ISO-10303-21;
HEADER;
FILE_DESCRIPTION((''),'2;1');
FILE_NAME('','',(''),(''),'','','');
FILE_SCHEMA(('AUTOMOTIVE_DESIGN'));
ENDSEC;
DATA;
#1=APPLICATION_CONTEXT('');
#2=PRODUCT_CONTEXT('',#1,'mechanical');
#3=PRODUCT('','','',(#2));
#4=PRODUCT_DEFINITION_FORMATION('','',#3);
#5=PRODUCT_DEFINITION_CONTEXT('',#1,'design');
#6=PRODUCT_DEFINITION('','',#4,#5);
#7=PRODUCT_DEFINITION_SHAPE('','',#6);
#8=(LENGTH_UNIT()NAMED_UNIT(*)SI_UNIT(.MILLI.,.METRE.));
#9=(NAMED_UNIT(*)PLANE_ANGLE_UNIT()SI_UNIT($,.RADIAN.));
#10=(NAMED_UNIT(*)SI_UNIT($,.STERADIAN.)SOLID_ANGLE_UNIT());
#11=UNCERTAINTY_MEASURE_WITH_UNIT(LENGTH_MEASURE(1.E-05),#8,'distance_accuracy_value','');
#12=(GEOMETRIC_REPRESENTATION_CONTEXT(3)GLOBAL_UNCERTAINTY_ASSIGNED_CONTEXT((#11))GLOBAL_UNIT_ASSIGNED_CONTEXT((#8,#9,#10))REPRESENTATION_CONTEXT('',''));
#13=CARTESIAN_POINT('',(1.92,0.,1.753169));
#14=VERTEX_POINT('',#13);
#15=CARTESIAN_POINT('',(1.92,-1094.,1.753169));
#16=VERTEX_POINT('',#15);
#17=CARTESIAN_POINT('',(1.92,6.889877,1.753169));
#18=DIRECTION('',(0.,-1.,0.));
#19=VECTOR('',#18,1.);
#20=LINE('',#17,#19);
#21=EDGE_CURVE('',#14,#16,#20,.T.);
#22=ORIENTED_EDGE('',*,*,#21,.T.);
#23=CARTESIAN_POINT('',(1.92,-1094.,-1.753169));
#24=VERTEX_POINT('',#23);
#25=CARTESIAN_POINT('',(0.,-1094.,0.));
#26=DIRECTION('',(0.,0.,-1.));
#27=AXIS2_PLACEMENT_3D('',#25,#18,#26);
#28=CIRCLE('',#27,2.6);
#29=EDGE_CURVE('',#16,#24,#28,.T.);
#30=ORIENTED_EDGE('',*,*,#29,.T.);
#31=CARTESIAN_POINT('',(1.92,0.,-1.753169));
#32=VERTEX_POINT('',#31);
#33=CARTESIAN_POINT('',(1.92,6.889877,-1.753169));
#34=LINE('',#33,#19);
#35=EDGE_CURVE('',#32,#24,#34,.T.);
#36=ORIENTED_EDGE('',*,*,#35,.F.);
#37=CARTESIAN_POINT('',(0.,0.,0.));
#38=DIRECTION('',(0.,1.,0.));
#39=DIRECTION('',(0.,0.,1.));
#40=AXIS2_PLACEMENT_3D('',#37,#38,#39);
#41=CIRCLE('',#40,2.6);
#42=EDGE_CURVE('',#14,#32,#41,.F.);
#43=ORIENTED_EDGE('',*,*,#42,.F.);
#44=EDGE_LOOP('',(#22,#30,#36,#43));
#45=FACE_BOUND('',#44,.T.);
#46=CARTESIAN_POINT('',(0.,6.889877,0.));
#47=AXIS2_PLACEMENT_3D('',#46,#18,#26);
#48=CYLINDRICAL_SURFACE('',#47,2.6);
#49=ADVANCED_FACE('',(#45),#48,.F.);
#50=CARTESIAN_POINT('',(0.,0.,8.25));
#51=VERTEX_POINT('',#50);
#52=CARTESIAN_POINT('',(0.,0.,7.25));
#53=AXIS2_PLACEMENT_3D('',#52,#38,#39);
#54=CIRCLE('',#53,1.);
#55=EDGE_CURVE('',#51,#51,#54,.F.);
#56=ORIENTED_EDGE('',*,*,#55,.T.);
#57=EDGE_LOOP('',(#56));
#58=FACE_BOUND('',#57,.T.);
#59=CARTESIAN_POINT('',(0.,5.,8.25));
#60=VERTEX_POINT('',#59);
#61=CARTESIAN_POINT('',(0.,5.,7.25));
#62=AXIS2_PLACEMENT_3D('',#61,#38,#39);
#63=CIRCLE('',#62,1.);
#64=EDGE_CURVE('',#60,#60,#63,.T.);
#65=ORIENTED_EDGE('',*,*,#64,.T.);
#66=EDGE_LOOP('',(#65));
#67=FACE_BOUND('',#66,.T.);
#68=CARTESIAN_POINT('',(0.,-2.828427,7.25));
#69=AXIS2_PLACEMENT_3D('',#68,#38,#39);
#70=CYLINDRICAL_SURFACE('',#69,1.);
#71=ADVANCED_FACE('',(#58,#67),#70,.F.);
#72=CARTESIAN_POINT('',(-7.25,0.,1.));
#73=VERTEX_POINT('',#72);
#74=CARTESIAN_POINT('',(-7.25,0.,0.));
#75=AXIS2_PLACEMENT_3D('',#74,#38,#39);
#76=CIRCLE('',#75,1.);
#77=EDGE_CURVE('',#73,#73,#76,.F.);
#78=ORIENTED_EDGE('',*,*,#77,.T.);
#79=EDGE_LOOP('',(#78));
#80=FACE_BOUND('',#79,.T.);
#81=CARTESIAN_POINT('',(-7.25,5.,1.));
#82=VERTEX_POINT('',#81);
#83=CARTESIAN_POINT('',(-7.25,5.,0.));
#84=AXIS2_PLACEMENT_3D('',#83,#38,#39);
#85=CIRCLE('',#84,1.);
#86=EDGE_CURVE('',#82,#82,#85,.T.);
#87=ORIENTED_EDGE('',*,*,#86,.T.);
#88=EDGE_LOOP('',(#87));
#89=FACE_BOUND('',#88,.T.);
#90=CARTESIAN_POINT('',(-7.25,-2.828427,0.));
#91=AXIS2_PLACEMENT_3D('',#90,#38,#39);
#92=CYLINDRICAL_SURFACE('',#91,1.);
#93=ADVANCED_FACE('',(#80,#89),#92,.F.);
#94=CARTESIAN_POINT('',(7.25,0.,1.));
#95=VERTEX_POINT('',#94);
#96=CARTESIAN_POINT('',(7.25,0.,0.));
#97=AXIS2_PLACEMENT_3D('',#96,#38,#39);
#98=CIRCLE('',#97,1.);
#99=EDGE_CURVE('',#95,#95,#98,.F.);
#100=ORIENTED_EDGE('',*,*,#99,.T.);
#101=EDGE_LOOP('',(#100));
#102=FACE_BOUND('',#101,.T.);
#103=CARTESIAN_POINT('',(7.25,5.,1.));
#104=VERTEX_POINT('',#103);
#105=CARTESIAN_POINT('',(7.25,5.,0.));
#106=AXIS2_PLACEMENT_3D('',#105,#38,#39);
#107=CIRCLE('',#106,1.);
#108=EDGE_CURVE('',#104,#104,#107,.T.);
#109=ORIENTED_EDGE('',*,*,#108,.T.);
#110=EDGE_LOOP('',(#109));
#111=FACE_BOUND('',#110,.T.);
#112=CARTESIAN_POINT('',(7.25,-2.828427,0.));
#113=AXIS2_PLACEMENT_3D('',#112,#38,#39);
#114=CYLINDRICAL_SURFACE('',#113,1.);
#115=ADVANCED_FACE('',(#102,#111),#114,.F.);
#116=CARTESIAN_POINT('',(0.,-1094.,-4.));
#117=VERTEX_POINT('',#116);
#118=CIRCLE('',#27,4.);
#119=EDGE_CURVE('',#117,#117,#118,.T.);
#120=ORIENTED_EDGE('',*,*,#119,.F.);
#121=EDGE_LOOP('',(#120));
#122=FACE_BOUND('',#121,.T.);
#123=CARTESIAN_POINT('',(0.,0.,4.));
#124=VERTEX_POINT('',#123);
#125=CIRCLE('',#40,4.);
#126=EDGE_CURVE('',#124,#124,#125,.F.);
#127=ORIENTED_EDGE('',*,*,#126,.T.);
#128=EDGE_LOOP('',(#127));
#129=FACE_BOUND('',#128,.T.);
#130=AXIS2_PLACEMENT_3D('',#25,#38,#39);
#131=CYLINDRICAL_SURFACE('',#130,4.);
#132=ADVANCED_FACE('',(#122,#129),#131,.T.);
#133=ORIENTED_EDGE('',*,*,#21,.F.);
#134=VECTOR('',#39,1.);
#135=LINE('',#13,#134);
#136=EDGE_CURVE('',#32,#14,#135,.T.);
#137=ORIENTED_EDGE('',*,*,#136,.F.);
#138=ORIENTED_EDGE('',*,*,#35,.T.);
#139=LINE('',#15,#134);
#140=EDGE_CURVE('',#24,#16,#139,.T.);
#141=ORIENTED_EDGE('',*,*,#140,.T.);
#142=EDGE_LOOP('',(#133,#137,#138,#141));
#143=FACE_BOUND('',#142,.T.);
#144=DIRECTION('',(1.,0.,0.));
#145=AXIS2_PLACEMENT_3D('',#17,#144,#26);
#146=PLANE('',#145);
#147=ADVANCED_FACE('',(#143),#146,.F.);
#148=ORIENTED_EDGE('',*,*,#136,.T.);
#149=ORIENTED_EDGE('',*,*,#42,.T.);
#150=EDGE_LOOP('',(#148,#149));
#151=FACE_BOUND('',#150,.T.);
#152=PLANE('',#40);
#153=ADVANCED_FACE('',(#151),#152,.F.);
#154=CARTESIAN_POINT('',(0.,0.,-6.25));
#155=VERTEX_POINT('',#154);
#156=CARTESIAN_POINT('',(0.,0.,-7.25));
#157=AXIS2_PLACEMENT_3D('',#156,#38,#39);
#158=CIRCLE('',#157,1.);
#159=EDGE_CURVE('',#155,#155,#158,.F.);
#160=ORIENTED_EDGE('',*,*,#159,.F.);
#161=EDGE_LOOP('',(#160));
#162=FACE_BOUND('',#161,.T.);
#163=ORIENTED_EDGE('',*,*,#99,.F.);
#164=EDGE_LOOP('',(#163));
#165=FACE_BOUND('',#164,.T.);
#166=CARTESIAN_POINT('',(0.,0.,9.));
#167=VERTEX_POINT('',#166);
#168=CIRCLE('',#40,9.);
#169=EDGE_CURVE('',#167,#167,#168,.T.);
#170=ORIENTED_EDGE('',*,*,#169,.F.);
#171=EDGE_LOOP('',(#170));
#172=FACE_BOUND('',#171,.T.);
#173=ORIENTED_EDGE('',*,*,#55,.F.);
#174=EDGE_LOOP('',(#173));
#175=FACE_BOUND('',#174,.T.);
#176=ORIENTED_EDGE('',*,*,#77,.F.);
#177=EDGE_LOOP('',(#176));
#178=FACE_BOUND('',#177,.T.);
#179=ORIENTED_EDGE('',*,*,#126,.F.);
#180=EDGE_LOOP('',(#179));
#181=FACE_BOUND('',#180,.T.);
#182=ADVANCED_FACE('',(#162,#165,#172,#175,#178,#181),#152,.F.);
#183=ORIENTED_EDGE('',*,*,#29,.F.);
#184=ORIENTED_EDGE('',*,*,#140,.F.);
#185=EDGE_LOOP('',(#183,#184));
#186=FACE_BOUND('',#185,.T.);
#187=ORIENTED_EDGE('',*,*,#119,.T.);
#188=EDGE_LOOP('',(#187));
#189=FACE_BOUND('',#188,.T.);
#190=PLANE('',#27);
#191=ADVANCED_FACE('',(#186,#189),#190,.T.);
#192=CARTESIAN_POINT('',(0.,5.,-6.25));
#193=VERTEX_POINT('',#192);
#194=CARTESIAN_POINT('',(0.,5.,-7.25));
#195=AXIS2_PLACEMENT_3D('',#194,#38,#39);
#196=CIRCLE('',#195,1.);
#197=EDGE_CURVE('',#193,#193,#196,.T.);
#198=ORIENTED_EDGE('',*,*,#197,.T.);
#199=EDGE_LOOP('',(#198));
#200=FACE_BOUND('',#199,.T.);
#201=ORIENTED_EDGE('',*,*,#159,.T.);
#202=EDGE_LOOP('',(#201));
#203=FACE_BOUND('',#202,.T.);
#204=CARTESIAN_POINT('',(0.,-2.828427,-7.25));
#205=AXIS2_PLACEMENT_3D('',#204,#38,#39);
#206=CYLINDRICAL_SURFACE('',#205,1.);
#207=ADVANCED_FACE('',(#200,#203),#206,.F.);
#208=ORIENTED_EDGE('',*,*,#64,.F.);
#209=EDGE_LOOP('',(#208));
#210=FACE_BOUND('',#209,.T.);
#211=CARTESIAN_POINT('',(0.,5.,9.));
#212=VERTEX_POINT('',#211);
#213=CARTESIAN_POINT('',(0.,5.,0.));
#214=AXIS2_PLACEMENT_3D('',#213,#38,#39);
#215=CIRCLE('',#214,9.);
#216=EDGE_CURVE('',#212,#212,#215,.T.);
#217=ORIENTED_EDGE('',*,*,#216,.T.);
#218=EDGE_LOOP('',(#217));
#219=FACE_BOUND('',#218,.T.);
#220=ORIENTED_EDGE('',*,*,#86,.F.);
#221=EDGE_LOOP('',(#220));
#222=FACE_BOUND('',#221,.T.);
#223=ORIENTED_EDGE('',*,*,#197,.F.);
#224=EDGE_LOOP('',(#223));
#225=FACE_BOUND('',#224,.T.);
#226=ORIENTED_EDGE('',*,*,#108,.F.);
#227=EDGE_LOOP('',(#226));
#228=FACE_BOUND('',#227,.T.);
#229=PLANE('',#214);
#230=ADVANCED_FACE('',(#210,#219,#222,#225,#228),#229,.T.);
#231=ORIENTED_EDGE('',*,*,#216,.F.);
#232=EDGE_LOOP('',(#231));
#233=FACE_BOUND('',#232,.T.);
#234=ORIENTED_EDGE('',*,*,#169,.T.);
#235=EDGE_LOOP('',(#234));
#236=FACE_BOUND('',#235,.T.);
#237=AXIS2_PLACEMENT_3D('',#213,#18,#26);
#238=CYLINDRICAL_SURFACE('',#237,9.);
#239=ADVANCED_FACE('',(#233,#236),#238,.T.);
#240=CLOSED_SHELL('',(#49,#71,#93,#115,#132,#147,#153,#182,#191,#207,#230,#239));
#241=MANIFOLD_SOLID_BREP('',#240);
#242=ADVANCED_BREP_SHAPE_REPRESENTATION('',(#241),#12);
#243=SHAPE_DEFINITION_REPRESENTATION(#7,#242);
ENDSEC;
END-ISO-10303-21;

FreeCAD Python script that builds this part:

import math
import FreeCAD as App
import Part
import Sketcher

V = App.Vector

doc = App.newDocument("Part")
body = doc.addObject("PartDesign::Body", "Body")

sketch1 = doc.addObject("Sketcher::SketchObject", "Sketch")
body.addObject(sketch1)
sketch1.AttachmentSupport = (doc.XZ_Plane, [""])
sketch1.MapMode = "FlatFace"
sketch1.addGeometry(Part.Circle(V(0, 0, 0), V(0, 0, 1), 9), False)
sketch1.addConstraint(Sketcher.Constraint("Coincident", 0, 3, -1, 1))
sketch1.addConstraint(Sketcher.Constraint("Diameter", 0, 18.0))
pad1 = doc.addObject("PartDesign::Pad", "Pad")
body.addObject(pad1)
pad1.Profile = sketch1
pad1.Length = 5
pad1.Reversed = True

sketch2 = doc.addObject("Sketcher::SketchObject", "Sketch001")
body.addObject(sketch2)
sketch2.AttachmentSupport = (doc.XZ_Plane, [""])
sketch2.MapMode = "FlatFace"
sketch2.AttachmentOffset = App.Placement(V(0, 0, -5), App.Rotation())
sketch2.addGeometry(Part.Circle(V(0, -7.2, 0), V(0, 0, 1), 1), False)
sketch2.addGeometry(Part.Circle(V(7.2, 0, 0), V(0, 0, 1), 1), False)
sketch2.addGeometry(Part.Circle(V(0, 7.2, 0), V(0, 0, 1), 1), False)
sketch2.addGeometry(Part.Circle(V(-7.2, 0, 0), V(0, 0, 1), 1), False)
sketch2.addConstraint(Sketcher.Constraint("Equal", 0, 1))
sketch2.addConstraint(Sketcher.Constraint("Equal", 1, 2))
sketch2.addConstraint(Sketcher.Constraint("Equal", 2, 3))
sketch2.addConstraint(Sketcher.Constraint("Symmetric", 0, 3, 2, 3, -1, 1))
sketch2.addConstraint(Sketcher.Constraint("Symmetric", 1, 3, 3, 3, -1, 1))
sketch2.addConstraint(Sketcher.Constraint("PointOnObject", 0, 3, -2))
sketch2.addConstraint(Sketcher.Constraint("PointOnObject", 1, 3, -1))
sketch2.addConstraint(Sketcher.Constraint("Diameter", 0, 2.0))
sketch2.addConstraint(Sketcher.Constraint("DistanceY", 0, 3, 2, 3, 14.5))
sketch2.addConstraint(Sketcher.Constraint("DistanceX", 3, 3, 1, 3, 14.5))
pocket1 = doc.addObject("PartDesign::Pocket", "Pocket")
body.addObject(pocket1)
pocket1.Profile = sketch2
pocket1.Length = 5
pocket1.Reversed = True

sketch3 = doc.addObject("Sketcher::SketchObject", "Sketch002")
body.addObject(sketch3)
sketch3.AttachmentSupport = (doc.XZ_Plane, [""])
sketch3.MapMode = "FlatFace"
sketch3.addGeometry(Part.Circle(V(0, 0, 0), V(0, 0, 1), 4), False)
sketch3.addConstraint(Sketcher.Constraint("Coincident", 0, 3, -1, 1))
sketch3.addConstraint(Sketcher.Constraint("Diameter", 0, 8.0))
pad2 = doc.addObject("PartDesign::Pad", "Pad001")
body.addObject(pad2)
pad2.Profile = sketch3
pad2.Length = 1094

sketch4 = doc.addObject("Sketcher::SketchObject", "Sketch003")
body.addObject(sketch4)
sketch4.AttachmentSupport = (doc.XZ_Plane, [""])
sketch4.MapMode = "FlatFace"
sketch4.AttachmentOffset = App.Placement(V(0, 0, 1094), App.Rotation())
sketch4.addGeometry(Part.LineSegment(V(1.9, -1.8, 0), V(1.9, 1.8, 0)), False)
sketch4.addGeometry(Part.ArcOfCircle(Part.Circle(V(0, 0, 0), V(0, 0, 1), 2.6), math.radians(42), math.radians(318)), False)
sketch4.addConstraint(Sketcher.Constraint("Coincident", 0, 1, 1, 2))
sketch4.addConstraint(Sketcher.Constraint("Coincident", 1, 1, 0, 2))
sketch4.addConstraint(Sketcher.Constraint("Vertical", 0))
sketch4.addConstraint(Sketcher.Constraint("Coincident", 1, 3, -1, 1))
sketch4.addConstraint(Sketcher.Constraint("Radius", 1, 2.6))
sketch4.addConstraint(Sketcher.Constraint("DistanceX", -1, 1, 0, 1, 1.92))
pocket2 = doc.addObject("PartDesign::Pocket", "Pocket001")
body.addObject(pocket2)
pocket2.Profile = sketch4
pocket2.Length = 1094

doc.recompute()
